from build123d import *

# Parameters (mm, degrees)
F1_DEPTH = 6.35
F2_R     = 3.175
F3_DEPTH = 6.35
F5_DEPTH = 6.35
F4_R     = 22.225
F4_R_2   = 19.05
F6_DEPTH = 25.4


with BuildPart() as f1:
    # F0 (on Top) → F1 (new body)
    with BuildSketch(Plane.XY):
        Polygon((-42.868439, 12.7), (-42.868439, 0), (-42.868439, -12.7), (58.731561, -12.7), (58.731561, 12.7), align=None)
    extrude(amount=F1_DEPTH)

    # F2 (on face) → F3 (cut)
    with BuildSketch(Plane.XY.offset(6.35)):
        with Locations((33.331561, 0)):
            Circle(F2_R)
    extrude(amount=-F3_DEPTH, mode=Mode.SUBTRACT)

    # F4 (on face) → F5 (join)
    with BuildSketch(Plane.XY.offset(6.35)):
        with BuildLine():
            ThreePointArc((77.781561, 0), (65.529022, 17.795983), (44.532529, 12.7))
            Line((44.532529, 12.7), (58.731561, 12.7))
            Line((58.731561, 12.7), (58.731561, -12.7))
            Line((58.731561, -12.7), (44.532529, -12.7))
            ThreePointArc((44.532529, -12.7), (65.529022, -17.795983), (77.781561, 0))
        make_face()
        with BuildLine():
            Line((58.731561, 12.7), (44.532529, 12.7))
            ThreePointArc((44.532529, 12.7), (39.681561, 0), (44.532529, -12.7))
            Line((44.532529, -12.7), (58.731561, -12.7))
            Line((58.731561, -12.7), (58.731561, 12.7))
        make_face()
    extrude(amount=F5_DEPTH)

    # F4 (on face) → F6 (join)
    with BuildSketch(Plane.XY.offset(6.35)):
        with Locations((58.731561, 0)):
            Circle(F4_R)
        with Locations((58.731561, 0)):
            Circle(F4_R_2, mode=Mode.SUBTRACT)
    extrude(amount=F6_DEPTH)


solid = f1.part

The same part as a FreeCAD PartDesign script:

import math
import FreeCAD as App
import Part
import Sketcher

V = App.Vector
Q = App.Units.Quantity

doc = App.newDocument("Part")
params = doc.addObject("Spreadsheet::Sheet", "Params")
for row, (alias, value) in enumerate([
    ("sketch1_width", "4 in"),
    ("sketch1_height", "1 in"),
    ("pad1_length", "0.25 in"),
    ("sketch2_diameter", "0.25 in"),
    ("pocket1_length", "0.25 in"),
    ("sketch3_radius", "0.75 in"),
    ("pad2_length", "0.25 in"),
    ("sketch4_diameter", "1.5 in"),
    ("sketch4_diameter2", "1.75 in"),
    ("pad3_length", "1 in"),
], start=1):
    params.set(f"A{row}", alias)
    params.set(f"B{row}", "=" + value)
    params.setAlias(f"B{row}", alias)

body = doc.addObject("PartDesign::Body", "Body")

# Sketch on XY plane
sketch1 = body.newObject("Sketcher::SketchObject", "Sketch")
sketch1.AttachmentSupport = (doc.getObject("XY_Plane"), [""])
sketch1.MapMode = "FlatFace"
sketch1.addGeometry(Part.LineSegment(V(-43, 13, 0), V(-43, -13, 0)), False)
sketch1.addGeometry(Part.LineSegment(V(-43, -13, 0), V(59, -13, 0)), False)
sketch1.addGeometry(Part.LineSegment(V(59, -13, 0), V(59, 13, 0)), False)
sketch1.addGeometry(Part.LineSegment(V(59, 13, 0), V(-43, 13, 0)), False)
sketch1.addConstraint(Sketcher.Constraint("Coincident", 0, 2, 1, 1))
sketch1.addConstraint(Sketcher.Constraint("Coincident", 1, 2, 2, 1))
sketch1.addConstraint(Sketcher.Constraint("Coincident", 2, 2, 3, 1))
sketch1.addConstraint(Sketcher.Constraint("Coincident", 3, 2, 0, 1))
sketch1.addConstraint(Sketcher.Constraint("Vertical", 0))
sketch1.addConstraint(Sketcher.Constraint("Horizontal", 1))
sketch1.addConstraint(Sketcher.Constraint("Vertical", 2))
sketch1.addConstraint(Sketcher.Constraint("Horizontal", 3))
sketch1.addConstraint(Sketcher.Constraint("DistanceX", 1, 1, 1, 2, Q("4 in")))
sketch1.addConstraint(Sketcher.Constraint("DistanceY", 0, 2, 0, 1, Q("1 in")))
sketch1.addConstraint(Sketcher.Constraint("DistanceY", 0, 2, -1, 1, Q("0.5 in")))
sketch1.addConstraint(Sketcher.Constraint("DistanceX", 0, 2, -1, 1, Q("42.868439 mm")))
sketch1.setExpression("Constraints[8]", "Params.sketch1_width")
sketch1.setExpression("Constraints[9]", "Params.sketch1_height")
pad1 = body.newObject("PartDesign::Pad", "Pad")
pad1.Profile = sketch1
pad1.setExpression("Length", "Params.pad1_length")

# Sketch on XY plane
sketch2 = body.newObject("Sketcher::SketchObject", "Sketch001")
sketch2.AttachmentSupport = (doc.getObject("XY_Plane"), [""])
sketch2.MapMode = "FlatFace"
sketch2.AttachmentOffset = App.Placement(V(0, 0, 0.25 * 25.4), App.Rotation())
sketch2.addGeometry(Part.Circle(V(33.3, 0, 0), V(0, 0, 1), 3.2), False)
sketch2.addConstraint(Sketcher.Constraint("PointOnObject", 0, 3, -1))
sketch2.addConstraint(Sketcher.Constraint("Diameter", 0, Q("0.25 in")))
sketch2.addConstraint(Sketcher.Constraint("DistanceX", -1, 1, 0, 3, Q("33.331561 mm")))
sketch2.setExpression("Constraints[1]", "Params.sketch2_diameter")
pocket1 = body.newObject("PartDesign::Pocket", "Pocket")
pocket1.Profile = sketch2
pocket1.setExpression("Length", "Params.pocket1_length")

# Sketch on XY plane
sketch3 = body.newObject("Sketcher::SketchObject", "Sketch002")
sketch3.AttachmentSupport = (doc.getObject("XY_Plane"), [""])
sketch3.MapMode = "FlatFace"
sketch3.AttachmentOffset = App.Placement(V(0, 0, 0.25 * 25.4), App.Rotation())
sketch3.addGeometry(Part.ArcOfCircle(Part.Circle(V(59, 0, 0), V(0, 0, 1), 19), math.radians(0), math.radians(138)), False)
sketch3.addGeometry(Part.ArcOfCircle(Part.Circle(V(59, 0, 0), V(0, 0, 1), 19), math.radians(138), math.radians(222)), False)
sketch3.addGeometry(Part.ArcOfCircle(Part.Circle(V(59, 0, 0), V(0, 0, 1), 19), math.radians(-138), math.radians(0)), False)
sketch3.addConstraint(Sketcher.Constraint("Tangent", 0, 2, 1, 1))
sketch3.addConstraint(Sketcher.Constraint("Tangent", 1, 2, 2, 1))
sketch3.addConstraint(Sketcher.Constraint("Tangent", 2, 2, 0, 1))
sketch3.addConstraint(Sketcher.Constraint("Symmetric", 0, 2, 1, 2, -1))
sketch3.addConstraint(Sketcher.Constraint("PointOnObject", 2, 2, -1))
sketch3.addConstraint(Sketcher.Constraint("Radius", 0, Q("0.75 in")))
sketch3.addConstraint(Sketcher.Constraint("DistanceY", 1, 2, 0, 2, Q("1 in")))
sketch3.addConstraint(Sketcher.Constraint("DistanceX", -1, 1, 0, 3, Q("58.731561 mm")))
sketch3.setExpression("Constraints[5]", "Params.sketch3_radius")
pad2 = body.newObject("PartDesign::Pad", "Pad001")
pad2.Profile = sketch3
pad2.setExpression("Length", "Params.pad2_length")

# Sketch on XY plane
sketch4 = body.newObject("Sketcher::SketchObject", "Sketch003")
sketch4.AttachmentSupport = (doc.getObject("XY_Plane"), [""])
sketch4.MapMode = "FlatFace"
sketch4.AttachmentOffset = App.Placement(V(0, 0, 0.25 * 25.4), App.Rotation())
sketch4.addGeometry(Part.Circle(V(59, 0, 0), V(0, 0, 1), 22), False)
sketch4.addGeometry(Part.Circle(V(59, 0, 0), V(0, 0, 1), 19), False)
sketch4.addConstraint(Sketcher.Constraint("Coincident", 1, 3, 0, 3))
sketch4.addConstraint(Sketcher.Constraint("PointOnObject", 0, 3, -1))
sketch4.addConstraint(Sketcher.Constraint("Diameter", 1, Q("1.5 in")))
sketch4.addConstraint(Sketcher.Constraint("Diameter", 0, Q("1.75 in")))
sketch4.addConstraint(Sketcher.Constraint("DistanceX", -1, 1, 0, 3, Q("58.731561 mm")))
sketch4.setExpression("Constraints[2]", "Params.sketch4_diameter")
sketch4.setExpression("Constraints[3]", "Params.sketch4_diameter2")
pad3 = body.newObject("PartDesign::Pad", "Pad002")
pad3.Profile = sketch4
pad3.setExpression("Length", "Params.pad3_length")

doc.recompute()
